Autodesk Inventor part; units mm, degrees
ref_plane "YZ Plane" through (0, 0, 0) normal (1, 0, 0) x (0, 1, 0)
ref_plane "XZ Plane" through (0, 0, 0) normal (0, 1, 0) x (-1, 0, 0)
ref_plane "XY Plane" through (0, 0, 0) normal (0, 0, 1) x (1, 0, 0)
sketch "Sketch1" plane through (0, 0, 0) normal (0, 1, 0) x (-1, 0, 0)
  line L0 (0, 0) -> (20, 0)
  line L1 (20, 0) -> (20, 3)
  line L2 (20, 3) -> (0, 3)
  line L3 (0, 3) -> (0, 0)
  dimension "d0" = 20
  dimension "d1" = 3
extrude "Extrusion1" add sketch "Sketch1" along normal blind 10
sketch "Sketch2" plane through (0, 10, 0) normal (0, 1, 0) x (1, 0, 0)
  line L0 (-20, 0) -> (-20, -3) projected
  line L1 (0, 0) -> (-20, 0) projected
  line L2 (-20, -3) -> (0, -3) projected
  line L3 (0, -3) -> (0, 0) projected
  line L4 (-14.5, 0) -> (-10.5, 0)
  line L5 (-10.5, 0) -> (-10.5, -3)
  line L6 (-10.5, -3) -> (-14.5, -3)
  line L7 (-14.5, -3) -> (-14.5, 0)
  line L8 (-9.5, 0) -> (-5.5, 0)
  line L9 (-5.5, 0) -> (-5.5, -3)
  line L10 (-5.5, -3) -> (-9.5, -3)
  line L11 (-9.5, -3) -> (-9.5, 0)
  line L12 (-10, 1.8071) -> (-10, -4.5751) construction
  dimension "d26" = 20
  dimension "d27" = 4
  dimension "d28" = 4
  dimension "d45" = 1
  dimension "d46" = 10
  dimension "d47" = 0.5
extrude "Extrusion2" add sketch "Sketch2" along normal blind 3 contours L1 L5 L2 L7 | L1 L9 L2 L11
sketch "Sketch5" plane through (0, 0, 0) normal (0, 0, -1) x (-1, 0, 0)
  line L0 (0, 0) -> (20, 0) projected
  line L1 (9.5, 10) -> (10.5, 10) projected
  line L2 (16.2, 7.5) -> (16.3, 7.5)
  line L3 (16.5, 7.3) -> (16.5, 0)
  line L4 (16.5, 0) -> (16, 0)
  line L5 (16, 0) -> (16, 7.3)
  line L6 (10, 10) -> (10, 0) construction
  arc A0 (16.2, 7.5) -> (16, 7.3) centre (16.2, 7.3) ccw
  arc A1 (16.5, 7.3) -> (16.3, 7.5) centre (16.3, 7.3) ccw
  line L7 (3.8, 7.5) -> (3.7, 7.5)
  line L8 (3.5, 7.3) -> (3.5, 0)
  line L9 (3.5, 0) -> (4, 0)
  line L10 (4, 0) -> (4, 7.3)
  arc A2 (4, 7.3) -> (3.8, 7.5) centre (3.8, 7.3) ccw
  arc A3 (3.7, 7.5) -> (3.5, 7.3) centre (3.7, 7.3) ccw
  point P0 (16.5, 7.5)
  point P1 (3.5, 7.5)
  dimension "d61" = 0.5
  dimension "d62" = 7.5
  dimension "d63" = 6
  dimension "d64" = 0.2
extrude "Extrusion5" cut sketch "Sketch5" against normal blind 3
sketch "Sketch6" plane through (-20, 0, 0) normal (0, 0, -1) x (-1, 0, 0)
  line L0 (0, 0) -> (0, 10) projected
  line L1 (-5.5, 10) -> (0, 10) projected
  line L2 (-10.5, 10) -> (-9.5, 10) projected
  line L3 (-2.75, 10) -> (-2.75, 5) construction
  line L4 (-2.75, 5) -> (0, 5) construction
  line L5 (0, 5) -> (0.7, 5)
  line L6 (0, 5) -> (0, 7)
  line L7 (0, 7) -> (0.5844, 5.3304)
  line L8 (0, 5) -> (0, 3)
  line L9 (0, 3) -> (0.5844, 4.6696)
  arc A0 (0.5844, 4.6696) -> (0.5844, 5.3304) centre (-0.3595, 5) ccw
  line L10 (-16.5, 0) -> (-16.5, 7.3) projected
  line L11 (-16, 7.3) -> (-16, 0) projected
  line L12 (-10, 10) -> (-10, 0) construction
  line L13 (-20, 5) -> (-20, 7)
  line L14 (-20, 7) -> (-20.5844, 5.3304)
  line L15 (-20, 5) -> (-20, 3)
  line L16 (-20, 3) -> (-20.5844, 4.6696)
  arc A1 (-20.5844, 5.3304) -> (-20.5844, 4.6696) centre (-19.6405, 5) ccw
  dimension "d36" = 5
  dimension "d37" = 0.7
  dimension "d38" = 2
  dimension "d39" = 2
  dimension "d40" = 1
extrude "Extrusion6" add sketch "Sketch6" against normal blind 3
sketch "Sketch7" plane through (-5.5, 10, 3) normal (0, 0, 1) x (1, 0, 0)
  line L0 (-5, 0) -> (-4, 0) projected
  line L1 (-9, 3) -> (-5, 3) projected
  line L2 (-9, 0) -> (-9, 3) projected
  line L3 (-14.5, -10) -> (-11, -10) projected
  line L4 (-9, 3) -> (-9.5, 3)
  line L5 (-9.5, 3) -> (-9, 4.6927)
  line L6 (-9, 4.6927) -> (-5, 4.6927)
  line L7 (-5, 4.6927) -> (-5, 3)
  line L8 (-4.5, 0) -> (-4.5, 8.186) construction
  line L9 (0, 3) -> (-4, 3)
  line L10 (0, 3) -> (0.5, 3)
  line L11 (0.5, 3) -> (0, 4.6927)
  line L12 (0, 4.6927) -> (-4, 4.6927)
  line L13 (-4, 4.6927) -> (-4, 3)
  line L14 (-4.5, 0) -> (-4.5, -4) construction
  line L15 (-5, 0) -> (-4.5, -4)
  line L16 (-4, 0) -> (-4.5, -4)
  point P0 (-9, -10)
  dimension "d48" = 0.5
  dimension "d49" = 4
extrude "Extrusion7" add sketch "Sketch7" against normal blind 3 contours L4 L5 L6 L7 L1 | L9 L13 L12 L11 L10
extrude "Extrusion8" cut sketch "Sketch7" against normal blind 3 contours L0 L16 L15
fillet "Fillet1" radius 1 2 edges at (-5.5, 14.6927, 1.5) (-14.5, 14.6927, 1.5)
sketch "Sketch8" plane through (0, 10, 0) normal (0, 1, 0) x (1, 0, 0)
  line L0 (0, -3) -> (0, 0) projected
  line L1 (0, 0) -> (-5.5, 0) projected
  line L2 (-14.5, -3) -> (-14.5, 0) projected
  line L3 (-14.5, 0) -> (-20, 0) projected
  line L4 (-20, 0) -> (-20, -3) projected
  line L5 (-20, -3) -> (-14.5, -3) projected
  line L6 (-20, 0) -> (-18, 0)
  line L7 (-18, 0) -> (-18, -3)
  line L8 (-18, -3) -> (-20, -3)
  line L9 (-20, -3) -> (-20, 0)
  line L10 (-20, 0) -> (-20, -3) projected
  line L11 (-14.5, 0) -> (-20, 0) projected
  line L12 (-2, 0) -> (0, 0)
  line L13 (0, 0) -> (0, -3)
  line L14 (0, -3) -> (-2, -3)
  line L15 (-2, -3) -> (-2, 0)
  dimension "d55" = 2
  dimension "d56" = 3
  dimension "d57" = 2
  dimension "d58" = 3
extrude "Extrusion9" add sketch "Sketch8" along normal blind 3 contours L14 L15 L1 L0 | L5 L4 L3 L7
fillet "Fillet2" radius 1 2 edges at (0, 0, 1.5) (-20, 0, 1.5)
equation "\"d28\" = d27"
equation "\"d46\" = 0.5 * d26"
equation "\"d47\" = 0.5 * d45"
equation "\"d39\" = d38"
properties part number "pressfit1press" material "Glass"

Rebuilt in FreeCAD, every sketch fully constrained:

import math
import FreeCAD as App
import Part
import Sketcher

V = App.Vector


def edges_at(feature, points):
    """Names of the edges that pass closest to the given points."""
    edges = feature.Shape.Edges
    near = lambda p: min(range(len(edges)), key=lambda i: edges[i].distToShape(Part.Vertex(*p))[0])
    return sorted({f"Edge{near(p) + 1}" for p in points})

doc = App.newDocument("Part")
body = doc.addObject("PartDesign::Body", "Body")

sketch1 = body.newObject("Sketcher::SketchObject", "Sketch")
sketch1.AttachmentSupport = (doc.getObject("XZ_Plane"), [""])
sketch1.MapMode = "FlatFace"
sketch1.addGeometry(Part.LineSegment(V(0, 3, 0), V(0, 0, 0)), False)
sketch1.addGeometry(Part.LineSegment(V(0, 0, 0), V(-20, 0, 0)), False)
sketch1.addGeometry(Part.LineSegment(V(-20, 0, 0), V(-20, 3, 0)), False)
sketch1.addGeometry(Part.LineSegment(V(-20, 3, 0), V(0, 3, 0)), False)
sketch1.addConstraint(Sketcher.Constraint("Coincident", 0, 2, 1, 1))
sketch1.addConstraint(Sketcher.Constraint("Coincident", 1, 2, 2, 1))
sketch1.addConstraint(Sketcher.Constraint("Coincident", 2, 2, 3, 1))
sketch1.addConstraint(Sketcher.Constraint("Coincident", 3, 2, 0, 1))
sketch1.addConstraint(Sketcher.Constraint("Vertical", 0))
sketch1.addConstraint(Sketcher.Constraint("Horizontal", 1))
sketch1.addConstraint(Sketcher.Constraint("Vertical", 2))
sketch1.addConstraint(Sketcher.Constraint("Horizontal", 3))
sketch1.addConstraint(Sketcher.Constraint("Coincident", 0, 2, -1, 1))
sketch1.addConstraint(Sketcher.Constraint("DistanceX", 1, 2, 1, 1, 20.0))
sketch1.addConstraint(Sketcher.Constraint("DistanceY", 0, 2, 0, 1, 3.0))
pad1 = body.newObject("PartDesign::Pad", "Pad")
pad1.Profile = sketch1
pad1.Length = 10
pad1.Reversed = True

sketch2 = body.newObject("Sketcher::SketchObject", "Sketch001")
sketch2.AttachmentSupport = (doc.getObject("XZ_Plane"), [""])
sketch2.MapMode = "FlatFace"
sketch2.AttachmentOffset = App.Placement(V(0, 0, -10), App.Rotation())
sketch2.addGeometry(Part.LineSegment(V(-10.5, 0, 0), V(-14.5, 0, 0)), False)
sketch2.addGeometry(Part.LineSegment(V(-14.5, 0, 0), V(-14.5, 3, 0)), False)
sketch2.addGeometry(Part.LineSegment(V(-14.5, 3, 0), V(-10.5, 3, 0)), False)
sketch2.addGeometry(Part.LineSegment(V(-10.5, 3, 0), V(-10.5, 0, 0)), False)
sketch2.addGeometry(Part.LineSegment(V(-5.5, 0, 0), V(-9.5, 0, 0)), False)
sketch2.addGeometry(Part.LineSegment(V(-9.5, 0, 0), V(-9.5, 3, 0)), False)
sketch2.addGeometry(Part.LineSegment(V(-9.5, 3, 0), V(-5.5, 3, 0)), False)
sketch2.addGeometry(Part.LineSegment(V(-5.5, 3, 0), V(-5.5, 0, 0)), False)
sketch2.addConstraint(Sketcher.Constraint("Coincident", 0, 2, 1, 1))
sketch2.addConstraint(Sketcher.Constraint("Coincident", 1, 2, 2, 1))
sketch2.addConstraint(Sketcher.Constraint("Coincident", 2, 2, 3, 1))
sketch2.addConstraint(Sketcher.Constraint("Coincident", 3, 2, 0, 1))
sketch2.addConstraint(Sketcher.Constraint("Coincident", 4, 2, 5, 1))
sketch2.addConstraint(Sketcher.Constraint("Coincident", 5, 2, 6, 1))
sketch2.addConstraint(Sketcher.Constraint("Coincident", 6, 2, 7, 1))
sketch2.addConstraint(Sketcher.Constraint("Coincident", 7, 2, 4, 1))
sketch2.addConstraint(Sketcher.Constraint("Horizontal", 0))
sketch2.addConstraint(Sketcher.Constraint("Vertical", 1))
sketch2.addConstraint(Sketcher.Constraint("Horizontal", 2))
sketch2.addConstraint(Sketcher.Constraint("Vertical", 3))
sketch2.addConstraint(Sketcher.Constraint("Horizontal", 4))
sketch2.addConstraint(Sketcher.Constraint("Vertical", 5))
sketch2.addConstraint(Sketcher.Constraint("Horizontal", 6))
sketch2.addConstraint(Sketcher.Constraint("Vertical", 7))
sketch2.addConstraint(Sketcher.Constraint("PointOnObject", 0, 2, -1))
sketch2.addConstraint(Sketcher.Constraint("PointOnObject", 4, 2, -1))
sketch2.addConstraint(Sketcher.Constraint("Horizontal", 2, 2, 5, 2))
sketch2.addConstraint(Sketcher.Constraint("Equal", 2, 4))
sketch2.addConstraint(Sketcher.Constraint("DistanceX", 0, 2, 0, 1, 4.0))
sketch2.addConstraint(Sketcher.Constraint("DistanceX", 3, 2, 4, 2, 1.0))
sketch2.addConstraint(Sketcher.Constraint("DistanceY", 1, 1, 1, 2, 3.0))
sketch2.addConstraint(Sketcher.Constraint("DistanceX", 0, 2, -1, 1, 14.5))
pad2 = body.newObject("PartDesign::Pad", "Pad001")
pad2.Profile = sketch2
pad2.Length = 3
pad2.Reversed = True

sketch3 = body.newObject("Sketcher::SketchObject", "Sketch002")
sketch3.AttachmentSupport = (doc.getObject("XY_Plane"), [""])
sketch3.MapMode = "FlatFace"
sketch3.addGeometry(Part.LineSegment(V(-3.5, 7.3, 0), V(-3.5, 0, 0)), False)
sketch3.addGeometry(Part.LineSegment(V(-3.5, 0, 0), V(-4, 0, 0)), False)
sketch3.addGeometry(Part.LineSegment(V(-4, 0, 0), V(-4, 7.3, 0)), False)
sketch3.addGeometry(Part.ArcOfCircle(Part.Circle(V(-3.8, 7.3, 0), V(0, 0, 1), 0.2), math.radians(90), math.radians(180)), False)
sketch3.addGeometry(Part.LineSegment(V(-3.8, 7.5, 0), V(-3.7, 7.5, 0)), False)
sketch3.addGeometry(Part.ArcOfCircle(Part.Circle(V(-3.7, 7.3, 0), V(0, 0, 1), 0.2), math.radians(0), math.radians(90)), False)
sketch3.addGeometry(Part.LineSegment(V(-16, 7.3, 0), V(-16, 0, 0)), False)
sketch3.addGeometry(Part.LineSegment(V(-16, 0, 0), V(-16.5, 0, 0)), False)
sketch3.addGeometry(Part.LineSegment(V(-16.5, 0, 0), V(-16.5, 7.3, 0)), False)
sketch3.addGeometry(Part.ArcOfCircle(Part.Circle(V(-16.3, 7.3, 0), V(0, 0, 1), 0.2), math.radians(90), math.radians(180)), False)
sketch3.addGeometry(Part.LineSegment(V(-16.3, 7.5, 0), V(-16.2, 7.5, 0)), False)
sketch3.addGeometry(Part.ArcOfCircle(Part.Circle(V(-16.2, 7.3, 0), V(0, 0, 1), 0.2), math.radians(0), math.radians(90)), False)
sketch3.addConstraint(Sketcher.Constraint("Coincident", 0, 2, 1, 1))
sketch3.addConstraint(Sketcher.Constraint("Coincident", 1, 2, 2, 1))
sketch3.addConstraint(Sketcher.Constraint("Tangent", 2, 2, 3, 2))
sketch3.addConstraint(Sketcher.Constraint("Tangent", 3, 1, 4, 1))
sketch3.addConstraint(Sketcher.Constraint("Tangent", 4, 2, 5, 2))
sketch3.addConstraint(Sketcher.Constraint("Tangent", 5, 1, 0, 1))
sketch3.addConstraint(Sketcher.Constraint("Coincident", 6, 2, 7, 1))
sketch3.addConstraint(Sketcher.Constraint("Coincident", 7, 2, 8, 1))
sketch3.addConstraint(Sketcher.Constraint("Tangent", 8, 2, 9, 2))
sketch3.addConstraint(Sketcher.Constraint("Tangent", 9, 1, 10, 1))
sketch3.addConstraint(Sketcher.Constraint("Tangent", 10, 2, 11, 2))
sketch3.addConstraint(Sketcher.Constraint("Tangent", 11, 1, 6, 1))
sketch3.addConstraint(Sketcher.Constraint("Vertical", 0))
sketch3.addConstraint(Sketcher.Constraint("Horizontal", 1))
sketch3.addConstraint(Sketcher.Constraint("Vertical", 2))
sketch3.addConstraint(Sketcher.Constraint("Horizontal", 4))
sketch3.addConstraint(Sketcher.Constraint("Vertical", 6))
sketch3.addConstraint(Sketcher.Constraint("Horizontal", 7))
sketch3.addConstraint(Sketcher.Constraint("Vertical", 8))
sketch3.addConstraint(Sketcher.Constraint("Horizontal", 10))
sketch3.addConstraint(Sketcher.Constraint("Equal", 3, 5))
sketch3.addConstraint(Sketcher.Constraint("Equal", 5, 9))
sketch3.addConstraint(Sketcher.Constraint("Equal", 9, 11))
sketch3.addConstraint(Sketcher.Constraint("PointOnObject", 0, 2, -1))
sketch3.addConstraint(Sketcher.Constraint("PointOnObject", 6, 2, -1))
sketch3.addConstraint(Sketcher.Constraint("Horizontal", 5, 3, 9, 3))
sketch3.addConstraint(Sketcher.Constraint("Equal", 1, 7))
sketch3.addConstraint(Sketcher.Constraint("Radius", 3, 0.2))
sketch3.addConstraint(Sketcher.Constraint("DistanceX", 1, 2, 1, 1, 0.5))
sketch3.addConstraint(Sketcher.Constraint("DistanceY", -1, 1, 3, 1, 7.5))
sketch3.addConstraint(Sketcher.Constraint("DistanceX", 1, 2, -1, 1, 4.0))
sketch3.addConstraint(Sketcher.Constraint("DistanceX", 6, 2, -1, 1, 16.0))
pocket1 = body.newObject("PartDesign::Pocket", "Pocket")
pocket1.Profile = sketch3
pocket1.Length = 3
pocket1.Reversed = True

sketch4 = body.newObject("Sketcher::SketchObject", "Sketch003")
sketch4.AttachmentSupport = (doc.getObject("XY_Plane"), [""])
sketch4.MapMode = "FlatFace"
sketch4.addGeometry(Part.LineSegment(V(-20, 3, 0), V(-20.5844, 4.6696, 0)), False)
sketch4.addGeometry(Part.ArcOfCircle(Part.Circle(V(-19.6405, 5, 0), V(0, 0, 1), 1.000056), math.radians(160.708061), math.radians(199.291939)), False)
sketch4.addGeometry(Part.LineSegment(V(-20.5844, 5.3304, 0), V(-20, 7, 0)), False)
sketch4.addGeometry(Part.LineSegment(V(-20, 7, 0), V(-20, 3, 0)), False)
sketch4.addGeometry(Part.LineSegment(V(0, 3, 0), V(0, 7, 0)), False)
sketch4.addGeometry(Part.LineSegment(V(0, 7, 0), V(0.5844, 5.3304, 0)), False)
sketch4.addGeometry(Part.ArcOfCircle(Part.Circle(V(-0.3595, 5, 0), V(0, 0, 1), 1.000056), math.radians(-19.291939), math.radians(19.291939)), False)
sketch4.addGeometry(Part.LineSegment(V(0.5844, 4.6696, 0), V(0, 3, 0)), False)
sketch4.addConstraint(Sketcher.Constraint("Tangent", 0, 2, 1, 2))
sketch4.addConstraint(Sketcher.Constraint("Tangent", 1, 1, 2, 1))
sketch4.addConstraint(Sketcher.Constraint("Coincident", 2, 2, 3, 1))
sketch4.addConstraint(Sketcher.Constraint("Coincident", 3, 2, 0, 1))
sketch4.addConstraint(Sketcher.Constraint("Coincident", 4, 2, 5, 1))
sketch4.addConstraint(Sketcher.Constraint("Tangent", 5, 2, 6, 2))
sketch4.addConstraint(Sketcher.Constraint("Tangent", 6, 1, 7, 1))
sketch4.addConstraint(Sketcher.Constraint("Coincident", 7, 2, 4, 1))
sketch4.addConstraint(Sketcher.Constraint("Vertical", 3))
sketch4.addConstraint(Sketcher.Constraint("Vertical", 4))
sketch4.addConstraint(Sketcher.Constraint("Equal", 1, 6))
sketch4.addConstraint(Sketcher.Constraint("PointOnObject", 4, 2, -2))
sketch4.addConstraint(Sketcher.Constraint("Parallel", 0, 5))
sketch4.addConstraint(Sketcher.Constraint("Parallel", 2, 7))
sketch4.addConstraint(Sketcher.Constraint("Horizontal", 1, 3, 6, 3))
sketch4.addConstraint(Sketcher.Constraint("Horizontal", 2, 2, 4, 2))
sketch4.addConstraint(Sketcher.Constraint("Horizontal", 1, 1, 5, 2))
sketch4.addConstraint(Sketcher.Constraint("Radius", 1, 1.0))
sketch4.addConstraint(Sketcher.Constraint("DistanceY", -1, 1, 1, 3, 5.0))
sketch4.addConstraint(Sketcher.Constraint("DistanceY", 1, 3, 2, 2, 2.0))
sketch4.addConstraint(Sketcher.Constraint("DistanceX", 2, 2, -1, 1, 20.0))
sketch4.addConstraint(Sketcher.Constraint("Distance", 0, 1.769))
pad3 = body.newObject("PartDesign::Pad", "Pad002")
pad3.Profile = sketch4
pad3.Length = 3

sketch5 = body.newObject("Sketcher::SketchObject", "Sketch004")
sketch5.AttachmentSupport = (doc.getObject("XY_Plane"), [""])
sketch5.MapMode = "FlatFace"
sketch5.AttachmentOffset = App.Placement(V(0, 0, 3), App.Rotation())
sketch5.addGeometry(Part.LineSegment(V(-15, 13, 0), V(-10.5, 13, 0)), False)
sketch5.addGeometry(Part.LineSegment(V(-10.5, 13, 0), V(-10.5, 14.6927, 0)), False)
sketch5.addGeometry(Part.LineSegment(V(-10.5, 14.6927, 0), V(-14.5, 14.6927, 0)), False)
sketch5.addGeometry(Part.LineSegment(V(-14.5, 14.6927, 0), V(-15, 13, 0)), False)
sketch5.addGeometry(Part.LineSegment(V(-9.5, 13, 0), V(-5, 13, 0)), False)
sketch5.addGeometry(Part.LineSegment(V(-5, 13, 0), V(-5.5, 14.6927, 0)), False)
sketch5.addGeometry(Part.LineSegment(V(-5.5, 14.6927, 0), V(-9.5, 14.6927, 0)), False)
sketch5.addGeometry(Part.LineSegment(V(-9.5, 14.6927, 0), V(-9.5, 13, 0)), False)
sketch5.addConstraint(Sketcher.Constraint("Coincident", 0, 2, 1, 1))
sketch5.addConstraint(Sketcher.Constraint("Coincident", 1, 2, 2, 1))
sketch5.addConstraint(Sketcher.Constraint("Coincident", 2, 2, 3, 1))
sketch5.addConstraint(Sketcher.Constraint("Coincident", 3, 2, 0, 1))
sketch5.addConstraint(Sketcher.Constraint("Coincident", 4, 2, 5, 1))
sketch5.addConstraint(Sketcher.Constraint("Coincident", 5, 2, 6, 1))
sketch5.addConstraint(Sketcher.Constraint("Coincident", 6, 2, 7, 1))
sketch5.addConstraint(Sketcher.Constraint("Coincident", 7, 2, 4, 1))
sketch5.addConstraint(Sketcher.Constraint("Horizontal", 0))
sketch5.addConstraint(Sketcher.Constraint("Vertical", 1))
sketch5.addConstraint(Sketcher.Constraint("Horizontal", 2))
sketch5.addConstraint(Sketcher.Constraint("Horizontal", 4))
sketch5.addConstraint(Sketcher.Constraint("Horizontal", 6))
sketch5.addConstraint(Sketcher.Constraint("Vertical", 7))
sketch5.addConstraint(Sketcher.Constraint("Horizontal", 3, 2, 4, 2))
sketch5.addConstraint(Sketcher.Constraint("Horizontal", 2, 2, 5, 2))
sketch5.addConstraint(Sketcher.Constraint("Equal", 0, 4))
sketch5.addConstraint(Sketcher.Constraint("Equal", 2, 6))
sketch5.addConstraint(Sketcher.Constraint("DistanceX", 2, 2, 2, 1, 4.0))
sketch5.addConstraint(Sketcher.Constraint("DistanceX", 3, 2, 2, 2, 0.5))
sketch5.addConstraint(Sketcher.Constraint("DistanceY", -1, 1, 0, 2, 13.0))
sketch5.addConstraint(Sketcher.Constraint("DistanceX", 3, 2, -1, 1, 15.0))
sketch5.addConstraint(Sketcher.Constraint("DistanceX", 4, 2, -1, 1, 5.0))
sketch5.addConstraint(Sketcher.Constraint("Distance", 3, 1.765))
pad4 = body.newObject("PartDesign::Pad", "Pad003")
pad4.Profile = sketch5
pad4.Length = 3
pad4.Reversed = True

sketch6 = body.newObject("Sketcher::SketchObject", "Sketch005")
sketch6.AttachmentSupport = (doc.getObject("XY_Plane"), [""])
sketch6.MapMode = "FlatFace"
sketch6.AttachmentOffset = App.Placement(V(0, 0, 3), App.Rotation())
sketch6.addGeometry(Part.LineSegment(V(-9.5, 10, 0), V(-10.5, 10, 0)), False)
sketch6.addGeometry(Part.LineSegment(V(-10.5, 10, 0), V(-10, 6, 0)), False)
sketch6.addGeometry(Part.LineSegment(V(-10, 6, 0), V(-9.5, 10, 0)), False)
sketch6.addConstraint(Sketcher.Constraint("Coincident", 0, 2, 1, 1))
sketch6.addConstraint(Sketcher.Constraint("Coincident", 1, 2, 2, 1))
sketch6.addConstraint(Sketcher.Constraint("Coincident", 2, 2, 0, 1))
sketch6.addConstraint(Sketcher.Constraint("Horizontal", 0))
sketch6.addConstraint(Sketcher.Constraint("Equal", 1, 2))
sketch6.addConstraint(Sketcher.Constraint("DistanceY", 1, 2, 0, 2, 4.0))
sketch6.addConstraint(Sketcher.Constraint("DistanceX", 0, 2, 1, 2, 0.5))
sketch6.addConstraint(Sketcher.Constraint("DistanceY", -1, 1, 0, 2, 10.0))
sketch6.addConstraint(Sketcher.Constraint("DistanceX", 1, 2, -1, 1, 10.0))
pocket2 = body.newObject("PartDesign::Pocket", "Pocket001")
pocket2.Profile = sketch6
pocket2.Length = 3
doc.recompute()

fillet = body.newObject("PartDesign::Fillet", "Fillet")
fillet.Base = (pocket2, edges_at(pocket2, [(-5.5, 14.693, 1.5), (-14.5, 14.693, 1.5)]))
fillet.Radius = 1

sketch7 = body.newObject("Sketcher::SketchObject", "Sketch006")
sketch7.AttachmentSupport = (doc.getObject("XZ_Plane"), [""])
sketch7.MapMode = "FlatFace"
sketch7.AttachmentOffset = App.Placement(V(0, 0, -10), App.Rotation())
sketch7.addGeometry(Part.LineSegment(V(-2, 3, 0), V(0, 3, 0)), False)
sketch7.addGeometry(Part.LineSegment(V(0, 3, 0), V(0, 0, 0)), False)
sketch7.addGeometry(Part.LineSegment(V(0, 0, 0), V(-2, 0, 0)), False)
sketch7.addGeometry(Part.LineSegment(V(-2, 0, 0), V(-2, 3, 0)), False)
sketch7.addGeometry(Part.LineSegment(V(-20, 3, 0), V(-18, 3, 0)), False)
sketch7.addGeometry(Part.LineSegment(V(-18, 3, 0), V(-18, 0, 0)), False)
sketch7.addGeometry(Part.LineSegment(V(-18, 0, 0), V(-20, 0, 0)), False)
sketch7.addGeometry(Part.LineSegment(V(-20, 0, 0), V(-20, 3, 0)), False)
sketch7.addConstraint(Sketcher.Constraint("Coincident", 0, 2, 1, 1))
sketch7.addConstraint(Sketcher.Constraint("Coincident", 1, 2, 2, 1))
sketch7.addConstraint(Sketcher.Constraint("Coincident", 2, 2, 3, 1))
sketch7.addConstraint(Sketcher.Constraint("Coincident", 3, 2, 0, 1))
sketch7.addConstraint(Sketcher.Constraint("Coincident", 4, 2, 5, 1))
sketch7.addConstraint(Sketcher.Constraint("Coincident", 5, 2, 6, 1))
sketch7.addConstraint(Sketcher.Constraint("Coincident", 6, 2, 7, 1))
sketch7.addConstraint(Sketcher.Constraint("Coincident", 7, 2, 4, 1))
sketch7.addConstraint(Sketcher.Constraint("Horizontal", 0))
sketch7.addConstraint(Sketcher.Constraint("Vertical", 1))
sketch7.addConstraint(Sketcher.Constraint("Horizontal", 2))
sketch7.addConstraint(Sketcher.Constraint("Vertical", 3))
sketch7.addConstraint(Sketcher.Constraint("Horizontal", 4))
sketch7.addConstraint(Sketcher.Constraint("Vertical", 5))
sketch7.addConstraint(Sketcher.Constraint("Horizontal", 6))
sketch7.addConstraint(Sketcher.Constraint("Vertical", 7))
sketch7.addConstraint(Sketcher.Constraint("Coincident", 1, 2, -1, 1))
sketch7.addConstraint(Sketcher.Constraint("PointOnObject", 5, 2, -1))
sketch7.addConstraint(Sketcher.Constraint("Horizontal", 3, 2, 4, 2))
sketch7.addConstraint(Sketcher.Constraint("Equal", 2, 4))
sketch7.addConstraint(Sketcher.Constraint("DistanceX", 0, 1, 0, 2, 2.0))
sketch7.addConstraint(Sketcher.Constraint("DistanceY", 1, 2, 1, 1, 3.0))
sketch7.addConstraint(Sketcher.Constraint("DistanceX", 4, 2, -1, 1, 18.0))
pad5 = body.newObject("PartDesign::Pad", "Pad004")
pad5.Profile = sketch7
pad5.Length = 3
pad5.Reversed = True
doc.recompute()

fillet2 = body.newObject("PartDesign::Fillet", "Fillet001")
fillet2.Base = (pad5, edges_at(pad5, [(0, 0, 1.5), (-20, 0, 1.5)]))
fillet2.Radius = 1

doc.recompute()
